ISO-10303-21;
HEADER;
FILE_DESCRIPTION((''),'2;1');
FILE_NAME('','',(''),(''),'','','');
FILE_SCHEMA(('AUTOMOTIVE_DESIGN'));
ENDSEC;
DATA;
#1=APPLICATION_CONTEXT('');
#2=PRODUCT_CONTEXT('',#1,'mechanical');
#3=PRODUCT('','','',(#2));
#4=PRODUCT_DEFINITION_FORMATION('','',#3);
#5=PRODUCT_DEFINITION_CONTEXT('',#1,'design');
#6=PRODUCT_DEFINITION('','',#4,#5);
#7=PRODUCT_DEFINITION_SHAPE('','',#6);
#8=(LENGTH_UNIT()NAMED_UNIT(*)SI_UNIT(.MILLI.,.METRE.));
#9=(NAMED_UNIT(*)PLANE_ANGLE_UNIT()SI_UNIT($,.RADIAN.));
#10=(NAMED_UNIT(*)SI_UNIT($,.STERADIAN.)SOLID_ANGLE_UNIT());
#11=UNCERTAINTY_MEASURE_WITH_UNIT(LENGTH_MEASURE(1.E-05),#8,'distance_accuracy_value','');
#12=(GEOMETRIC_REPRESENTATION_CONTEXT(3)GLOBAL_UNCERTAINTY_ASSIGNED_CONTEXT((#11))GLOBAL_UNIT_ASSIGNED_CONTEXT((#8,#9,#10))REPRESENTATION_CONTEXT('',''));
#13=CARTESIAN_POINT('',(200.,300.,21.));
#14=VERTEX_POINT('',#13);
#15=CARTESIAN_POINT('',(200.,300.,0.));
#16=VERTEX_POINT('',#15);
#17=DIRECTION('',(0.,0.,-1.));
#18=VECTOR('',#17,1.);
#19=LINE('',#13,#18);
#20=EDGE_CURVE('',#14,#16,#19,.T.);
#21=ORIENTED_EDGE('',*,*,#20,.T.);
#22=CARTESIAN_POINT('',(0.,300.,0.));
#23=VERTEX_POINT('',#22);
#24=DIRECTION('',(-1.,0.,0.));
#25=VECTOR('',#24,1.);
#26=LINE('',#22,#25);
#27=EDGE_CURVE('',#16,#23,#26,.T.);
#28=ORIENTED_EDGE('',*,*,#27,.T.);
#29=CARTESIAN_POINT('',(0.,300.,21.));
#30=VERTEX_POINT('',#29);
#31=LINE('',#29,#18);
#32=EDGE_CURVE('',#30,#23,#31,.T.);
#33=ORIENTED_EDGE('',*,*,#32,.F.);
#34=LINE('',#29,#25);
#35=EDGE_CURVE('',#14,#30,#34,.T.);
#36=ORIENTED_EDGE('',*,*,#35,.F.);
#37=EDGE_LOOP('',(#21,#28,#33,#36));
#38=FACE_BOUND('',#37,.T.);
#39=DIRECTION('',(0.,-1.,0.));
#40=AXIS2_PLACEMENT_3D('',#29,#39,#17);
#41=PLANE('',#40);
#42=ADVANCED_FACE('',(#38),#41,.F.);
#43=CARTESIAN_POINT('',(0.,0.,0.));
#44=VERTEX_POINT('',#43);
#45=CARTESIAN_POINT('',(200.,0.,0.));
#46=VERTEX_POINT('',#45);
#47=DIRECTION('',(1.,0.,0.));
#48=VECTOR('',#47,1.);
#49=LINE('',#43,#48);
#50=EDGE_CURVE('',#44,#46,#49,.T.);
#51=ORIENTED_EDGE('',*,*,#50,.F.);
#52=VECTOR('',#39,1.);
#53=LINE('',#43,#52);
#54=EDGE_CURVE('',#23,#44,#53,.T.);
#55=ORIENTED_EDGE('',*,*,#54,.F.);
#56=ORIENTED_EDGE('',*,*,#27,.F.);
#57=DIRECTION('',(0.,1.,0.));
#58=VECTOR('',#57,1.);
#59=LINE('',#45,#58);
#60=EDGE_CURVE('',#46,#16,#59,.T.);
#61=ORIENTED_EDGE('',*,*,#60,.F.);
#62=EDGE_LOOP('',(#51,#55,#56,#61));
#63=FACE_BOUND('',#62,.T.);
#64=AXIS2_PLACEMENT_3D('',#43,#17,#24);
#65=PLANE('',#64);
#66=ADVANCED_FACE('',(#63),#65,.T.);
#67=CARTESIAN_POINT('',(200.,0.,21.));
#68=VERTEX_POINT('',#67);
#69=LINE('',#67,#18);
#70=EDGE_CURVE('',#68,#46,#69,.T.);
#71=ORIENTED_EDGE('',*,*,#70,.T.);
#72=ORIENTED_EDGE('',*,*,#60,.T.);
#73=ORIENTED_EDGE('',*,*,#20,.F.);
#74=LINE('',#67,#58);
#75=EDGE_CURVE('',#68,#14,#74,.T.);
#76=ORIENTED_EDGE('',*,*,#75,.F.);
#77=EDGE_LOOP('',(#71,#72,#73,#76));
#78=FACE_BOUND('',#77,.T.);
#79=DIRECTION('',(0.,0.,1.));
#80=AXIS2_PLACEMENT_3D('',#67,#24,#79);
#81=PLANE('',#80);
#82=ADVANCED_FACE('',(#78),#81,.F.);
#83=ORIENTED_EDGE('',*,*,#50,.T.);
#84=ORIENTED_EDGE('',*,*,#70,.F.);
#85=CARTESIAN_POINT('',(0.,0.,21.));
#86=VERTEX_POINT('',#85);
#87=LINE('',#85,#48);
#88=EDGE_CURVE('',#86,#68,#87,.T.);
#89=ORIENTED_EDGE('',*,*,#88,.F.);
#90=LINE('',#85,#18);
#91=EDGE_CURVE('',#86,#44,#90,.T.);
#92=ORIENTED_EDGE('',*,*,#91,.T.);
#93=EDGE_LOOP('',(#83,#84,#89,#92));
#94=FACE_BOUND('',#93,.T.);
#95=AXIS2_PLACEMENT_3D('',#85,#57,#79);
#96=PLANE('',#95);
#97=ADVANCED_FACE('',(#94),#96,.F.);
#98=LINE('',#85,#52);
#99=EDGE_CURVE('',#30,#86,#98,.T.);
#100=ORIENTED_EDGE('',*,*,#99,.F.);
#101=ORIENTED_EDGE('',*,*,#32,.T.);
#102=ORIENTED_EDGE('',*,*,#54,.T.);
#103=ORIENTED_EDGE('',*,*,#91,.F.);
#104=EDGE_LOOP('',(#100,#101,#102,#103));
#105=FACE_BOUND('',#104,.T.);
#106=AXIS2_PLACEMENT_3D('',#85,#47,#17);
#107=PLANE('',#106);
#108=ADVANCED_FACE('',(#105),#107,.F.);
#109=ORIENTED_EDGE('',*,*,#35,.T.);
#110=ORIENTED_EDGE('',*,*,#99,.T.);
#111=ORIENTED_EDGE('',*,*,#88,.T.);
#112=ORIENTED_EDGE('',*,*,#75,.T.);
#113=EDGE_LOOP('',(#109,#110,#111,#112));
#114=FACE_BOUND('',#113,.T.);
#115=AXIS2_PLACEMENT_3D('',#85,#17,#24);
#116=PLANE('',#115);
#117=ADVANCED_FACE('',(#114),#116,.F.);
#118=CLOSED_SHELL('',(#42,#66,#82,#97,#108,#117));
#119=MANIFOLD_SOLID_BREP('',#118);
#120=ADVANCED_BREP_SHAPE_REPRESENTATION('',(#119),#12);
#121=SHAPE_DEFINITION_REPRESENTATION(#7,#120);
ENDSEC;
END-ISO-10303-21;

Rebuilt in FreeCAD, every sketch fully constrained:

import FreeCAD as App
import Part
import Sketcher
Q = App.Units.Quantity

doc = App.newDocument("Part")
body = doc.addObject("PartDesign::Body", "Body")

# Sketch on XY plane
sketch1 = doc.addObject("Sketcher::SketchObject", "Sketch")
body.addObject(sketch1)
sketch1.AttachmentSupport = (doc.XY_Plane, [""])
sketch1.MapMode = "FlatFace"
sketch1.addGeometry([
    Part.LineSegment(App.Vector(0, 300, 0), App.Vector(0, 0, 0)),
    Part.LineSegment(App.Vector(0, 0, 0), App.Vector(200, 0, 0)),
    Part.LineSegment(App.Vector(200, 0, 0), App.Vector(200, 300, 0)),
    Part.LineSegment(App.Vector(200, 300, 0), App.Vector(0, 300, 0)),
], False)
sketch1.addConstraint([
    Sketcher.Constraint("Coincident", 0, 2, 1, 1),
    Sketcher.Constraint("Coincident", 1, 2, 2, 1),
    Sketcher.Constraint("Coincident", 2, 2, 3, 1),
    Sketcher.Constraint("Coincident", 3, 2, 0, 1),
    Sketcher.Constraint("Vertical", 0),
    Sketcher.Constraint("Horizontal", 1),
    Sketcher.Constraint("Vertical", 2),
    Sketcher.Constraint("Horizontal", 3),
    Sketcher.Constraint("Coincident", 0, 2, -1, 1),
    Sketcher.Constraint("DistanceX", 1, 1, 1, 2, Q("200 mm")),
    Sketcher.Constraint("DistanceY", 0, 2, 0, 1, Q("300 mm")),
])
pad1 = doc.addObject("PartDesign::Pad", "Pad")
body.addObject(pad1)
pad1.Profile = sketch1
pad1.Length = 21

doc.recompute()
